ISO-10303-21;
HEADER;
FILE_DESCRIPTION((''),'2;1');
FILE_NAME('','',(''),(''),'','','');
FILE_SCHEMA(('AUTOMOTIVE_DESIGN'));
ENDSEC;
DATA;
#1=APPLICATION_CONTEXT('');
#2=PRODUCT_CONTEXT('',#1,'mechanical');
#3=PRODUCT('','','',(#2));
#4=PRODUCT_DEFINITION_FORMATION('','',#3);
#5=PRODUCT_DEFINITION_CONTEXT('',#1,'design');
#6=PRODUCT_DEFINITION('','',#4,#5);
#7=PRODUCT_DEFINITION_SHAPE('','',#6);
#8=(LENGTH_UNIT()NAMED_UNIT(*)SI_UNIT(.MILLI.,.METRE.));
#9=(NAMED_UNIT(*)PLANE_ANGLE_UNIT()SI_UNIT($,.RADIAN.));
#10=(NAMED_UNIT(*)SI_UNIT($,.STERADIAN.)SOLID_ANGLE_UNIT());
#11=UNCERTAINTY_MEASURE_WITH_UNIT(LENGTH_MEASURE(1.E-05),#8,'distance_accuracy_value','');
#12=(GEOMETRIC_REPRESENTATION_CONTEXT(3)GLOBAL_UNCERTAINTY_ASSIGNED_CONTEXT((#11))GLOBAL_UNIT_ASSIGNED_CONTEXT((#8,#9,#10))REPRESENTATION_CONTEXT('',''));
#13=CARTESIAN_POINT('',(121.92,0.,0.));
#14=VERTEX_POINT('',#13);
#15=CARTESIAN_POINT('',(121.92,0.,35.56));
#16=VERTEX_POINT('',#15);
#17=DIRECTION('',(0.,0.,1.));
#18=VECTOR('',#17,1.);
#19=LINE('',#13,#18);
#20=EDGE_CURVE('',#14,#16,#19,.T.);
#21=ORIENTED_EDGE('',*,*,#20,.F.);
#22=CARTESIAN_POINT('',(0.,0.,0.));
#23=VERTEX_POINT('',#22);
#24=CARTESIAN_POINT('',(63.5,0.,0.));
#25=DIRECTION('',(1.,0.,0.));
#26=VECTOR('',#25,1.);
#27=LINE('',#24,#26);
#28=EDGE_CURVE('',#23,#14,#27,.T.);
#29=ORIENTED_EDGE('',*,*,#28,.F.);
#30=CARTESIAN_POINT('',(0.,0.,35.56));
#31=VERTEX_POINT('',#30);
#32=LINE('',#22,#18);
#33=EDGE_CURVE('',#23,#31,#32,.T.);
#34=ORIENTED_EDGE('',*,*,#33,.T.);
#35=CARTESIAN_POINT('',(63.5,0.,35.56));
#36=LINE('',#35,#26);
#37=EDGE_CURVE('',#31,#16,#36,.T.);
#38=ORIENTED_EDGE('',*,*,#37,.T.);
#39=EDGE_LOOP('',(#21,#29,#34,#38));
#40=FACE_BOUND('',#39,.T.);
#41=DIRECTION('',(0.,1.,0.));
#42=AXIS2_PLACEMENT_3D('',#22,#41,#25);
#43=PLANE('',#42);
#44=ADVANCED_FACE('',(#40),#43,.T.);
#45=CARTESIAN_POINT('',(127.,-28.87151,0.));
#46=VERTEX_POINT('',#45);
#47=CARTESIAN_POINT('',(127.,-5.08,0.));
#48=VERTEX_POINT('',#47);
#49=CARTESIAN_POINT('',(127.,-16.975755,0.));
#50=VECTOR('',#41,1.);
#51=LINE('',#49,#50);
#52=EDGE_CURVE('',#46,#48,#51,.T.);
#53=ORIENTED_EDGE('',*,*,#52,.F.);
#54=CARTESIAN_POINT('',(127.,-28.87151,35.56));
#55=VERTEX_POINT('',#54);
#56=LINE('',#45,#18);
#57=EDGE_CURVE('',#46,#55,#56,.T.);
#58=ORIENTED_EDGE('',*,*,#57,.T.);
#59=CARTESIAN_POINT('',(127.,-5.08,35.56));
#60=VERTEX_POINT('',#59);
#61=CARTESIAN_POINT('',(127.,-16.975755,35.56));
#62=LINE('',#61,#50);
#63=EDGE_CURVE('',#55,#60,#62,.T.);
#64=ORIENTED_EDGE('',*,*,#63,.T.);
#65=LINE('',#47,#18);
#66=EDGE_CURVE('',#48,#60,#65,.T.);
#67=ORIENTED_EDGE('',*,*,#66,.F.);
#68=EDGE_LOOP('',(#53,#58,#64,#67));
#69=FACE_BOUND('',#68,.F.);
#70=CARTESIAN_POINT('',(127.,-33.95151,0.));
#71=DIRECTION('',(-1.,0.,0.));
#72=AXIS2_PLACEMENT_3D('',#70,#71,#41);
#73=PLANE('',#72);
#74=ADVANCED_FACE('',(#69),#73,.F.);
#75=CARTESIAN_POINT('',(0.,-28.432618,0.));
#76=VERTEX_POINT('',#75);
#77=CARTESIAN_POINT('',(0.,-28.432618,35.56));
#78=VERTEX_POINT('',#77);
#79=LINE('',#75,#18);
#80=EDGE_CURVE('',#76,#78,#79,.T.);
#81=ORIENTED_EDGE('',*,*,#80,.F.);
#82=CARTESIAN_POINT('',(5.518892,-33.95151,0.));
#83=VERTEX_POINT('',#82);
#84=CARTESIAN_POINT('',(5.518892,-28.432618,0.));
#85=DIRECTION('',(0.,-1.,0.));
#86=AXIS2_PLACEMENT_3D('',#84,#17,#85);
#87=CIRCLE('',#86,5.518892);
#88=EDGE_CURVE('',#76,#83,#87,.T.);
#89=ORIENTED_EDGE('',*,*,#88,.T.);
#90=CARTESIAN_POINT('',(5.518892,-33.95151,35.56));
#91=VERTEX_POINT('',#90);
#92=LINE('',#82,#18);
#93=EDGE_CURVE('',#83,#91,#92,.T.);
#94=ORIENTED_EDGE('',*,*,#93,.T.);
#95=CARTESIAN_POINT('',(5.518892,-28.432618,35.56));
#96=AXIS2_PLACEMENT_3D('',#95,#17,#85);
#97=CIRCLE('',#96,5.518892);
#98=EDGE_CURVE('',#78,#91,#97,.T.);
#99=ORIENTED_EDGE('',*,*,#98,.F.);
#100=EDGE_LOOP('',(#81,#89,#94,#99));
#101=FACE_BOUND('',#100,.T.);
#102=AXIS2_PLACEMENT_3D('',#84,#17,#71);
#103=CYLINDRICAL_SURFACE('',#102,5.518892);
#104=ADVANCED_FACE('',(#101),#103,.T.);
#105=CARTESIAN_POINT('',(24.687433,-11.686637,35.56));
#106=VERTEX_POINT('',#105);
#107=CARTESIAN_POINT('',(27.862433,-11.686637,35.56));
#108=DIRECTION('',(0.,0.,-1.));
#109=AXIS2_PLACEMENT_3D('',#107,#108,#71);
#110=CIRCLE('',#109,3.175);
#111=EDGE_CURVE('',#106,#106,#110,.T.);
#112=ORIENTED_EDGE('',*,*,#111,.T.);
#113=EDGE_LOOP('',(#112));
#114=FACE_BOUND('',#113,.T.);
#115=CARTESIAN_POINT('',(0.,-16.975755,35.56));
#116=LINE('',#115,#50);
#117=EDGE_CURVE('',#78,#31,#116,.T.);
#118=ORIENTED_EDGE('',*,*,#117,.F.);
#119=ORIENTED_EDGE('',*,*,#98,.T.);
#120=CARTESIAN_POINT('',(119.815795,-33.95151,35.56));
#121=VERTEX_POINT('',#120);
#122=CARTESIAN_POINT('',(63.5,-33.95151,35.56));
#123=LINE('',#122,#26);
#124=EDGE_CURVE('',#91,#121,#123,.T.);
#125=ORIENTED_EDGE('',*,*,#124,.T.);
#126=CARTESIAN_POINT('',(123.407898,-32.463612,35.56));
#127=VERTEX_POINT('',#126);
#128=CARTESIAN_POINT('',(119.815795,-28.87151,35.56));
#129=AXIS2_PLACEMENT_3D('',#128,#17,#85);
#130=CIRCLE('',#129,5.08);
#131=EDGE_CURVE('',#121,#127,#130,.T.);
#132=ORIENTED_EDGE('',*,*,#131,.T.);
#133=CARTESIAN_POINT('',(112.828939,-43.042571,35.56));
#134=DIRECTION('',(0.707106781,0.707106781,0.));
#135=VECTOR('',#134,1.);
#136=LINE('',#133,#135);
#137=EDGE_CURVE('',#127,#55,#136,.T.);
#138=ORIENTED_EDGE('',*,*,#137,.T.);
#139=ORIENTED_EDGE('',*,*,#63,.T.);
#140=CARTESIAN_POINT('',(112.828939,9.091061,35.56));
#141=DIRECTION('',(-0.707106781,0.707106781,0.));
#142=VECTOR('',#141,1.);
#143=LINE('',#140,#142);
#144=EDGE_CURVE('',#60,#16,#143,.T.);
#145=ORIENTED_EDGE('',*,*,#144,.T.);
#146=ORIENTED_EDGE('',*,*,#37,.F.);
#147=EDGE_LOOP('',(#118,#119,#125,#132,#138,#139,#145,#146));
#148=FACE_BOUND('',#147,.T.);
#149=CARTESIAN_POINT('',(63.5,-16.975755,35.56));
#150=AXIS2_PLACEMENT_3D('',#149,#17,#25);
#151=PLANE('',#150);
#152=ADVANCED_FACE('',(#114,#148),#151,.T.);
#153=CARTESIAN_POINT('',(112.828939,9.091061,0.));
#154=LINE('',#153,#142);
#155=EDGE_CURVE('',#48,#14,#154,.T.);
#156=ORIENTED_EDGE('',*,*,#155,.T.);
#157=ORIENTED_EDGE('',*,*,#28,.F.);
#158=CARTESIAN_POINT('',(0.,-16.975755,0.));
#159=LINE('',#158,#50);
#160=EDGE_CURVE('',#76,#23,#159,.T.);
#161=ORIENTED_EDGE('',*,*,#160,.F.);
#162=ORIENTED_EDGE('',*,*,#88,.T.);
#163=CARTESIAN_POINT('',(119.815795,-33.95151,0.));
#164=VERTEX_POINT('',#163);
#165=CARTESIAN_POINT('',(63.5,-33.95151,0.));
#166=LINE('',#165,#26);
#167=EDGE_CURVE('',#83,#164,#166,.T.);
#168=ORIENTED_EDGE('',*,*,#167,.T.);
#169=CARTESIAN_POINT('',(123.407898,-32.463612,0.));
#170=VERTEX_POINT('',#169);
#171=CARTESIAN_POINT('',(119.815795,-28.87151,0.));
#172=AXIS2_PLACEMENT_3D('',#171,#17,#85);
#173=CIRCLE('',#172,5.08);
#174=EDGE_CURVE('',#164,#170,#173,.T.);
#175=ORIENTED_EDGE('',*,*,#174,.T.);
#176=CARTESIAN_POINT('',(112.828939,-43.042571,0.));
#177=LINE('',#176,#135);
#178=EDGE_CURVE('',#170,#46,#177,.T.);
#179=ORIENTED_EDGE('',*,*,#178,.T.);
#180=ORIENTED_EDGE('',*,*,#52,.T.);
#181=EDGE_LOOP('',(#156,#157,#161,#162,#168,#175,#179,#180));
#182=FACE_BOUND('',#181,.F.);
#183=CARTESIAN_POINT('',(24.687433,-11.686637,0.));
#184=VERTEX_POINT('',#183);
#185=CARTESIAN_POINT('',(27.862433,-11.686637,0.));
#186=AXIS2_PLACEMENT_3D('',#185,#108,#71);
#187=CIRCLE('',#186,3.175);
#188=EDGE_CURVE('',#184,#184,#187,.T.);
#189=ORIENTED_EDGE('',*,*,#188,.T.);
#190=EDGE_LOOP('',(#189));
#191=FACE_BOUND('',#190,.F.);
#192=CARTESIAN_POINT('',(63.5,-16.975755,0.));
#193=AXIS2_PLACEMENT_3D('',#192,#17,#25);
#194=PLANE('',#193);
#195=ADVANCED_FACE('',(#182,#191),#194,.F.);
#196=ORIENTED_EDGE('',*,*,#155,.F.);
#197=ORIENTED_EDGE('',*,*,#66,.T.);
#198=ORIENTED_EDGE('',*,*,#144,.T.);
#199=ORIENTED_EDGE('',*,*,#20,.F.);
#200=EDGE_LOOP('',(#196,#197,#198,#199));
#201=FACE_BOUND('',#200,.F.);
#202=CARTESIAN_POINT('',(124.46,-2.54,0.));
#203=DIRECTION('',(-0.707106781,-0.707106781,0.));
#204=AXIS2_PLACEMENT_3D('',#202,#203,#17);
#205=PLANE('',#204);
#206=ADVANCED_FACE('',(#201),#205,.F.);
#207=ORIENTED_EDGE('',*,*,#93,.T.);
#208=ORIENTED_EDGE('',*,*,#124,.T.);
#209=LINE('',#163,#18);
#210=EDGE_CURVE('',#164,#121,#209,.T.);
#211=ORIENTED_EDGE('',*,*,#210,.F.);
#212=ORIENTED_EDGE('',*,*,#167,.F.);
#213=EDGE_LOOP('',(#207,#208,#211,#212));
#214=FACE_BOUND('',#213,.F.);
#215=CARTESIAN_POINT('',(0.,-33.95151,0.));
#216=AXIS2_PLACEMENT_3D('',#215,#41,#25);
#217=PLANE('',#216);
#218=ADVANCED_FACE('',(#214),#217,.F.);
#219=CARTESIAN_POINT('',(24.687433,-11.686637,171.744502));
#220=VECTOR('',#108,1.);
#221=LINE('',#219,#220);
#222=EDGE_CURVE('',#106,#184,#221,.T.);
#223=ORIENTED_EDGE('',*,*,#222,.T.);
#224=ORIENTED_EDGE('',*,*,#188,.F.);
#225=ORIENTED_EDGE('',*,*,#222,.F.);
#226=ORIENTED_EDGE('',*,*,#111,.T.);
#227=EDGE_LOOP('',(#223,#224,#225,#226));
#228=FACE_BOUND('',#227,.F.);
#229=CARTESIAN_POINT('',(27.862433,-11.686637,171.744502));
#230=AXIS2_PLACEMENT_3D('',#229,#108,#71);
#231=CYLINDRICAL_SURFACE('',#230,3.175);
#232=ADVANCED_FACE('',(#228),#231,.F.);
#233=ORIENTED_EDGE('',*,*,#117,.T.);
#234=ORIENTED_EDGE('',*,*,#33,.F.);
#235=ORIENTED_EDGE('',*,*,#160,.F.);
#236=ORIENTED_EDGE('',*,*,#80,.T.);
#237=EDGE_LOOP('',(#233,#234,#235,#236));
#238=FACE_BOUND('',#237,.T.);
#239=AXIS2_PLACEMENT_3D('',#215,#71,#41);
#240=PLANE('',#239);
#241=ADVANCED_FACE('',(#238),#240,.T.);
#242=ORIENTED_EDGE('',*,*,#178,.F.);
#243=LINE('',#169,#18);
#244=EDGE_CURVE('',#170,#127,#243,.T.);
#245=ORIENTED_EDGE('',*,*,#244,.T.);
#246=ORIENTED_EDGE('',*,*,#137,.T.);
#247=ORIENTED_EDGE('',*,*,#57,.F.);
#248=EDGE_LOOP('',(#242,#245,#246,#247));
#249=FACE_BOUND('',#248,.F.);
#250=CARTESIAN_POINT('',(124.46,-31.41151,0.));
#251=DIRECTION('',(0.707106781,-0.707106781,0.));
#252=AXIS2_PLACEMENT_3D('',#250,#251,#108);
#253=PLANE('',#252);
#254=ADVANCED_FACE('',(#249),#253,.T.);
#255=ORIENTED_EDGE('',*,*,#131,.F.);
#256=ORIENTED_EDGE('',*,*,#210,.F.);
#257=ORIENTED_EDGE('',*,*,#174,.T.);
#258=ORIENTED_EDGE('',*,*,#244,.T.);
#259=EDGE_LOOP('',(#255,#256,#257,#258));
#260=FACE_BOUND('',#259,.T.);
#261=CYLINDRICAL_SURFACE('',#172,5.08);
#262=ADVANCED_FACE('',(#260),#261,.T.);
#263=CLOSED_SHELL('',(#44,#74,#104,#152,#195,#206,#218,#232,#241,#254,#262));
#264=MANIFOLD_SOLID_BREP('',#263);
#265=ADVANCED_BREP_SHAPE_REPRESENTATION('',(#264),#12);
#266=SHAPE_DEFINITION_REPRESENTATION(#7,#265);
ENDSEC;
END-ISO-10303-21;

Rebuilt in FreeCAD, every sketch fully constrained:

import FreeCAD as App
import Part
import Sketcher

V = App.Vector
Q = App.Units.Quantity


def edges_at(feature, points):
    """Names of the edges that pass closest to the given points."""
    edges = feature.Shape.Edges
    near = lambda p: min(range(len(edges)), key=lambda i: edges[i].distToShape(Part.Vertex(*p))[0])
    return sorted({f"Edge{near(p) + 1}" for p in points})

doc = App.newDocument("Part")
body = doc.addObject("PartDesign::Body", "Body")

sketch1 = doc.addObject("Sketcher::SketchObject", "Sketch")
body.addObject(sketch1)
sketch1.AttachmentSupport = (doc.XY_Plane, [""])
sketch1.MapMode = "FlatFace"
sketch1.addGeometry(Part.LineSegment(V(0, 0, 0), V(0, -34, 0)), False)
sketch1.addGeometry(Part.LineSegment(V(0, -34, 0), V(127, -34, 0)), False)
sketch1.addGeometry(Part.LineSegment(V(127, -34, 0), V(127, 0, 0)), False)
sketch1.addGeometry(Part.LineSegment(V(127, 0, 0), V(0, 0, 0)), False)
sketch1.addConstraint(Sketcher.Constraint("Coincident", 0, 2, 1, 1))
sketch1.addConstraint(Sketcher.Constraint("Coincident", 1, 2, 2, 1))
sketch1.addConstraint(Sketcher.Constraint("Coincident", 2, 2, 3, 1))
sketch1.addConstraint(Sketcher.Constraint("Coincident", 3, 2, 0, 1))
sketch1.addConstraint(Sketcher.Constraint("Vertical", 0))
sketch1.addConstraint(Sketcher.Constraint("Horizontal", 1))
sketch1.addConstraint(Sketcher.Constraint("Vertical", 2))
sketch1.addConstraint(Sketcher.Constraint("Horizontal", 3))
sketch1.addConstraint(Sketcher.Constraint("Coincident", 3, 2, -1, 1))
sketch1.addConstraint(Sketcher.Constraint("DistanceX", 1, 1, 1, 2, Q("5 in")))
sketch1.addConstraint(Sketcher.Constraint("DistanceY", 0, 2, 0, 1, Q("33.95151 mm")))
pad1 = doc.addObject("PartDesign::Pad", "Pad")
body.addObject(pad1)
pad1.Profile = sketch1
pad1.Length = Q("1.4 in")
doc.recompute()

fillet = doc.addObject("PartDesign::Fillet", "Fillet")
body.addObject(fillet)
fillet.Base = (pad1, edges_at(pad1, [(0, -33.952, 17.78)]))
fillet.Radius = 5.518892
doc.recompute()

chamfer = doc.addObject("PartDesign::Chamfer", "Chamfer")
body.addObject(chamfer)
chamfer.Base = (fillet, edges_at(fillet, [(127, -33.952, 17.78)]))
chamfer.Size = Q("0.2 in")

sketch2 = doc.addObject("Sketcher::SketchObject", "Sketch001")
body.addObject(sketch2)
sketch2.AttachmentSupport = (doc.XY_Plane, [""])
sketch2.MapMode = "FlatFace"
sketch2.AttachmentOffset = App.Placement(V(0, 0, 1.4 * 25.4), App.Rotation())
sketch2.addGeometry(Part.Circle(V(27.9, -11.7, 0), V(0, 0, 1), 3.2), False)
sketch2.addConstraint(Sketcher.Constraint("Diameter", 0, Q("0.25 in")))
sketch2.addConstraint(Sketcher.Constraint("DistanceX", -1, 1, 0, 3, Q("27.862433 mm")))
sketch2.addConstraint(Sketcher.Constraint("DistanceY", 0, 3, -1, 1, Q("11.686637 mm")))
doc.recompute()
hole = doc.addObject("PartDesign::Hole", "Hole")
body.addObject(hole)
hole.Profile = sketch2
hole.ThreadType = "None"
hole.Diameter = Q("0.25 in")
hole.DepthType = "ThroughAll"
doc.recompute()

fillet2 = doc.addObject("PartDesign::Fillet", "Fillet001")
body.addObject(fillet2)
fillet2.Base = (hole, edges_at(hole, [(121.92, -33.952, 17.78)]))
fillet2.Radius = Q("0.2 in")
doc.recompute()

chamfer2 = doc.addObject("PartDesign::Chamfer", "Chamfer001")
body.addObject(chamfer2)
chamfer2.Base = (fillet2, edges_at(fillet2, [(127, 0, 17.78)]))
chamfer2.Size = Q("0.2 in")

doc.recompute()
